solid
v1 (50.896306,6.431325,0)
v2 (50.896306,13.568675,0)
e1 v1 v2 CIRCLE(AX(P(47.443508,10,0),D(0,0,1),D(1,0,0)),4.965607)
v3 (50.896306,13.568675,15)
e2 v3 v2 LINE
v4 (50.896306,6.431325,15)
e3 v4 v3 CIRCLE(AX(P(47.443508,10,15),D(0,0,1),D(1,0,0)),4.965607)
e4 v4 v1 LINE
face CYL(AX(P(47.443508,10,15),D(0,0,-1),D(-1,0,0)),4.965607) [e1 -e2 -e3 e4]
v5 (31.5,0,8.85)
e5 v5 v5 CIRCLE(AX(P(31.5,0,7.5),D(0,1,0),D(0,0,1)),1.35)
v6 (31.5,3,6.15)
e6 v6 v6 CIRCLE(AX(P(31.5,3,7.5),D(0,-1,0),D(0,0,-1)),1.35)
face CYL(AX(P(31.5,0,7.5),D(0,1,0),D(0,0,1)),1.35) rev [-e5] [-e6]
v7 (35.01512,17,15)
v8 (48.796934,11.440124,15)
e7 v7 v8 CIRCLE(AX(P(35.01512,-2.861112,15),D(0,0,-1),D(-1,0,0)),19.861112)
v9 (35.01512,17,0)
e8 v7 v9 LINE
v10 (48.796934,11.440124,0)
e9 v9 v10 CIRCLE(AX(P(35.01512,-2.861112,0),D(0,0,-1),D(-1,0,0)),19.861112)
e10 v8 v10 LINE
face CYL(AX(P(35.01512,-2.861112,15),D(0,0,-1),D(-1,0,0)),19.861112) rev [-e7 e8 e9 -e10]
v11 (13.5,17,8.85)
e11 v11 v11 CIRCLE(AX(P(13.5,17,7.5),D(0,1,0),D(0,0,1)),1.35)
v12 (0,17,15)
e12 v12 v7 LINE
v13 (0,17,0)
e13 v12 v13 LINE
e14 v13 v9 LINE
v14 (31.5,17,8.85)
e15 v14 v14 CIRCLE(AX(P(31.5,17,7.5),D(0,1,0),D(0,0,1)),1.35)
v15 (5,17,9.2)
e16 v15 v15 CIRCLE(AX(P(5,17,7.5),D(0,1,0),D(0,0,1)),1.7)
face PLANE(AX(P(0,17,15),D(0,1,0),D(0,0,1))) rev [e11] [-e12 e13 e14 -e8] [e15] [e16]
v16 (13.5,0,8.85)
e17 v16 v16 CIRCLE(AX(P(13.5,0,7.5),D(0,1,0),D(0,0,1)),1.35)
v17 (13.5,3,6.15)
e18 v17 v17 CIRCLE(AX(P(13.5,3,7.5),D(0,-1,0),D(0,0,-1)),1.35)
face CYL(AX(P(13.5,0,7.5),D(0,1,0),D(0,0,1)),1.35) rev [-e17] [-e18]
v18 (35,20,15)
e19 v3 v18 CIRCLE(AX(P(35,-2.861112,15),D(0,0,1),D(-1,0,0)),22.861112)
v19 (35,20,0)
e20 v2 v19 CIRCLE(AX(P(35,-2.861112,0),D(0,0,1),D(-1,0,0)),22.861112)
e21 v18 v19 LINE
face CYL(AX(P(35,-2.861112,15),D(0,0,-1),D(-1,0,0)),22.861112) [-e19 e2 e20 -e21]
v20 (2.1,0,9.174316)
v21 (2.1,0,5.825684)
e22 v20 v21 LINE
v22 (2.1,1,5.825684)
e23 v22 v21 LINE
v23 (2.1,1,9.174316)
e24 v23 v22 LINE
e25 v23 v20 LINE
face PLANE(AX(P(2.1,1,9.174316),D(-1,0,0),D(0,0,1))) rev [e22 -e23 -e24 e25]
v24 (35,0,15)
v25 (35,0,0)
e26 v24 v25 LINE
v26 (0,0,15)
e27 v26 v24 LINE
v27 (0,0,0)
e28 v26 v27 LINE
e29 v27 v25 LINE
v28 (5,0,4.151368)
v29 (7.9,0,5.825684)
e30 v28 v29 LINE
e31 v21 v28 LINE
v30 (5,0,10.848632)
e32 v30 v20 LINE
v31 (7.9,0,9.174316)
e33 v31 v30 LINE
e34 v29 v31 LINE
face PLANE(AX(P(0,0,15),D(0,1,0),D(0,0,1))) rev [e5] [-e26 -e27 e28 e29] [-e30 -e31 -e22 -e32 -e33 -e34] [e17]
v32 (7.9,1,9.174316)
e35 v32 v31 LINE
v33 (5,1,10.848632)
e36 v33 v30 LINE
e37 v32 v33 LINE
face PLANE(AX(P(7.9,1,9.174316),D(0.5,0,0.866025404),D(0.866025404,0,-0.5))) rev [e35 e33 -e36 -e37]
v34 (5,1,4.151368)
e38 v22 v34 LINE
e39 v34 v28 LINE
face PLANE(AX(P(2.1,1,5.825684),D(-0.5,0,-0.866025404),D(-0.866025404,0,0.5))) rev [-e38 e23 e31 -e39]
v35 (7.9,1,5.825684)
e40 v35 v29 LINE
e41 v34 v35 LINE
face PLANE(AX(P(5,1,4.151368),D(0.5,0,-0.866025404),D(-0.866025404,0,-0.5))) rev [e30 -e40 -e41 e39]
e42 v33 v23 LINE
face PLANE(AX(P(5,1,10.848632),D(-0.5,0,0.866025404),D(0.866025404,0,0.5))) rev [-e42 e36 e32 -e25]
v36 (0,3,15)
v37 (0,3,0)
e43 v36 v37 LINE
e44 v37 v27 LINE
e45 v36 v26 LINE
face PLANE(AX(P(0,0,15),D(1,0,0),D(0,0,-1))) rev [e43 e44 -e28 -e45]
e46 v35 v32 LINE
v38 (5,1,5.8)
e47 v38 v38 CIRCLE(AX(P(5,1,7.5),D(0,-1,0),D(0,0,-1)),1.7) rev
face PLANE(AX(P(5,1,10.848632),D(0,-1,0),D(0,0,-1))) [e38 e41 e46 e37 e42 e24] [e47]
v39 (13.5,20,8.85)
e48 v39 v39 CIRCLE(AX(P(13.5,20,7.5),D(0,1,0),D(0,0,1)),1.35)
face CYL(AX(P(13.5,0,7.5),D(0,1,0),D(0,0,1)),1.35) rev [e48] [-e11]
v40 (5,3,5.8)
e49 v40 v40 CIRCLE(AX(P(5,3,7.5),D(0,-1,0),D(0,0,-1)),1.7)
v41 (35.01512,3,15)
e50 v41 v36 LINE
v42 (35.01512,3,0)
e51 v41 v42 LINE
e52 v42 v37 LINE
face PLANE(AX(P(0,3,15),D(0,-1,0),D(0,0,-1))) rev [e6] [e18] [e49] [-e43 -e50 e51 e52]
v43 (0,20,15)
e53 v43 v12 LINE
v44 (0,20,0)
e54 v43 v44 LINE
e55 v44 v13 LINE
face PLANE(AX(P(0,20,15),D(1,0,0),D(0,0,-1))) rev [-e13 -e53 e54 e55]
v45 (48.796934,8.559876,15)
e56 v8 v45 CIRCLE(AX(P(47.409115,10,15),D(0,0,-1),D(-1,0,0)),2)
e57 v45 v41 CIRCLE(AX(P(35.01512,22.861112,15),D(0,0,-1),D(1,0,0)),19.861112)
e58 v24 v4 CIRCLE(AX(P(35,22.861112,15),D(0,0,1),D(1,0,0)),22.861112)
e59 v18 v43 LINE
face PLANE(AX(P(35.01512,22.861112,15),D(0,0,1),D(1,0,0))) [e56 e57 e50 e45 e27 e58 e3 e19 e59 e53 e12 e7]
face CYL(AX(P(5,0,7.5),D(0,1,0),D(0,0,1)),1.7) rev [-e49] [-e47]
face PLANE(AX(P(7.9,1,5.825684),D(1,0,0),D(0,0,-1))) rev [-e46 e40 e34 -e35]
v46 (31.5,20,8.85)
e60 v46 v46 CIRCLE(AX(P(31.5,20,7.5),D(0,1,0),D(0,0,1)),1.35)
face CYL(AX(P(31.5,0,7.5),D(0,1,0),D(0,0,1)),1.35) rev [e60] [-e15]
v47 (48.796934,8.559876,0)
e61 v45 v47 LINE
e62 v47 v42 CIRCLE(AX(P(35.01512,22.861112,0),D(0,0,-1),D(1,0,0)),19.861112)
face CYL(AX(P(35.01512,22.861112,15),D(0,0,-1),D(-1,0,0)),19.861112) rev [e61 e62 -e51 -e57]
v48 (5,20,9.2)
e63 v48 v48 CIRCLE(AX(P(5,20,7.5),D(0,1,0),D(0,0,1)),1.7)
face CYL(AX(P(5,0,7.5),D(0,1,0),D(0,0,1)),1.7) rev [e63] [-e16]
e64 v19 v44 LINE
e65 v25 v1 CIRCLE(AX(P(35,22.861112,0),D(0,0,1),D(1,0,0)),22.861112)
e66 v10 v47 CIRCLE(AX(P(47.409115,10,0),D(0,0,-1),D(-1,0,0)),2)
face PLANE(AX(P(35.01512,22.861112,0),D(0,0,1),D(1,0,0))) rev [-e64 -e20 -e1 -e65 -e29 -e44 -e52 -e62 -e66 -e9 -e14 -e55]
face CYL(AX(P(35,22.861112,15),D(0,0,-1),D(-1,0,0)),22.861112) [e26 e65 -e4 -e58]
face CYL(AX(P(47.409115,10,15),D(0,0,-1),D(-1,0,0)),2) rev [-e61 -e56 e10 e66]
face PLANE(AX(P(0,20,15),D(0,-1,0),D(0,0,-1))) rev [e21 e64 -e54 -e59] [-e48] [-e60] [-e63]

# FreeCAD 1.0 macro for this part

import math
import FreeCAD as App
import Part
import Sketcher
from FreeCAD import Vector
Q = App.Units.Quantity


def add_polygon(sketch, points):
    """Adds a closed chain of lines whose ends are joined by coincident constraints."""
    first, n = sketch.GeometryCount, len(points)
    for a, b in zip(points, points[1:] + points[:1]):
        sketch.addGeometry(Part.LineSegment(App.Vector(*a, 0), App.Vector(*b, 0)), False)
    for i in range(n):
        sketch.addConstraint(Sketcher.Constraint("Coincident", first + i, 2, first + (i + 1) % n, 1))

doc = App.newDocument("Part")
body = doc.addObject("PartDesign::Body", "Body")

# Sketch on XY plane
sketch1 = doc.addObject("Sketcher::SketchObject", "Sketch")
body.addObject(sketch1)
sketch1.AttachmentSupport = (doc.XY_Plane, [""])
sketch1.MapMode = "FlatFace"
sketch1.addGeometry(Part.LineSegment(Vector(0, 0, 0), Vector(35, 0, 0)), False)
sketch1.addGeometry(Part.ArcOfCircle(Part.Circle(Vector(35, 22.9, 0), Vector(0, 0, 1), 22.9), math.radians(-90), math.radians(-46)), False)
sketch1.addGeometry(Part.ArcOfCircle(Part.Circle(Vector(47.4, 10, 0), Vector(0, 0, 1), 5), math.radians(-46), math.radians(46)), False)
sketch1.addGeometry(Part.ArcOfCircle(Part.Circle(Vector(35, -2.9, 0), Vector(0, 0, 1), 22.9), math.radians(46), math.radians(90)), False)
sketch1.addGeometry(Part.LineSegment(Vector(35, 20, 0), Vector(0, 20, 0)), False)
sketch1.addGeometry(Part.LineSegment(Vector(0, 20, 0), Vector(0, 17, 0)), False)
sketch1.addGeometry(Part.LineSegment(Vector(0, 17, 0), Vector(35, 17, 0)), False)
sketch1.addGeometry(Part.ArcOfCircle(Part.Circle(Vector(35, -2.9, 0), Vector(0, 0, 1), 19.9), math.radians(46), math.radians(90)), False)
sketch1.addGeometry(Part.ArcOfCircle(Part.Circle(Vector(47.4, 10, 0), Vector(0, 0, 1), 2), math.radians(-46), math.radians(46)), False)
sketch1.addGeometry(Part.ArcOfCircle(Part.Circle(Vector(35, 22.9, 0), Vector(0, 0, 1), 19.9), math.radians(-90), math.radians(-46)), False)
sketch1.addGeometry(Part.LineSegment(Vector(35, 3, 0), Vector(0, 3, 0)), False)
sketch1.addGeometry(Part.LineSegment(Vector(0, 3, 0), Vector(0, 0, 0)), False)
sketch1.addConstraint(Sketcher.Constraint("Tangent", 0, 2, 1, 1))
sketch1.addConstraint(Sketcher.Constraint("Tangent", 1, 2, 2, 1))
sketch1.addConstraint(Sketcher.Constraint("Tangent", 2, 2, 3, 1))
sketch1.addConstraint(Sketcher.Constraint("Tangent", 3, 2, 4, 1))
sketch1.addConstraint(Sketcher.Constraint("Coincident", 4, 2, 5, 1))
sketch1.addConstraint(Sketcher.Constraint("Coincident", 5, 2, 6, 1))
sketch1.addConstraint(Sketcher.Constraint("Tangent", 6, 2, 7, 2))
sketch1.addConstraint(Sketcher.Constraint("Tangent", 7, 1, 8, 2))
sketch1.addConstraint(Sketcher.Constraint("Tangent", 8, 1, 9, 2))
sketch1.addConstraint(Sketcher.Constraint("Tangent", 9, 1, 10, 1))
sketch1.addConstraint(Sketcher.Constraint("Coincident", 10, 2, 11, 1))
sketch1.addConstraint(Sketcher.Constraint("Coincident", 11, 2, 0, 1))
sketch1.addConstraint(Sketcher.Constraint("Horizontal", 0))
sketch1.addConstraint(Sketcher.Constraint("Horizontal", 4))
sketch1.addConstraint(Sketcher.Constraint("Vertical", 5))
sketch1.addConstraint(Sketcher.Constraint("Horizontal", 6))
sketch1.addConstraint(Sketcher.Constraint("Horizontal", 10))
sketch1.addConstraint(Sketcher.Constraint("Vertical", 11))
sketch1.addConstraint(Sketcher.Constraint("Coincident", 11, 2, -1, 1))
sketch1.addConstraint(Sketcher.Constraint("Equal", 1, 3))
sketch1.addConstraint(Sketcher.Constraint("Equal", 7, 9))
sketch1.addConstraint(Sketcher.Constraint("PointOnObject", 4, 2, -2))
sketch1.addConstraint(Sketcher.Constraint("Horizontal", 3, 3, 7, 3))
sketch1.addConstraint(Sketcher.Constraint("Horizontal", 2, 3, 8, 3))
sketch1.addConstraint(Sketcher.Constraint("Horizontal", 1, 3, 9, 3))
sketch1.addConstraint(Sketcher.Constraint("Vertical", 1, 3, 3, 3))
sketch1.addConstraint(Sketcher.Constraint("Radius", 8, Q("2 mm")))
sketch1.addConstraint(Sketcher.Constraint("DistanceX", 0, 1, 0, 2, Q("35 mm")))
sketch1.addConstraint(Sketcher.Constraint("DistanceY", 5, 2, 5, 1, Q("3 mm")))
sketch1.addConstraint(Sketcher.Constraint("DistanceY", -1, 1, 2, 3, Q("10 mm")))
sketch1.addConstraint(Sketcher.Constraint("Radius", 1, Q("22.861112 mm")))
sketch1.addConstraint(Sketcher.Constraint("Radius", 2, Q("4.965607 mm")))
sketch1.addConstraint(Sketcher.Constraint("DistanceX", 6, 1, 6, 2, Q("35.01512 mm")))
pad1 = doc.addObject("PartDesign::Pad", "Pad")
body.addObject(pad1)
pad1.Profile = sketch1
pad1.Length = 15

# Sketch on XZ plane
sketch2 = doc.addObject("Sketcher::SketchObject", "Sketch001")
body.addObject(sketch2)
sketch2.AttachmentSupport = (doc.XZ_Plane, [""])
sketch2.MapMode = "FlatFace"
sketch2.AttachmentOffset = App.Placement(Vector(0, 0, -20), App.Rotation())
sketch2.addGeometry(Part.Circle(Vector(5, 7.5, 0), Vector(0, 0, 1), 1.7), False)
sketch2.addGeometry(Part.Circle(Vector(13.5, 7.5, 0), Vector(0, 0, 1), 1.4), False)
sketch2.addGeometry(Part.Circle(Vector(31.5, 7.5, 0), Vector(0, 0, 1), 1.4), False)
sketch2.addConstraint(Sketcher.Constraint("Equal", 1, 2))
sketch2.addConstraint(Sketcher.Constraint("Horizontal", 0, 3, 1, 3))
sketch2.addConstraint(Sketcher.Constraint("Horizontal", 1, 3, 2, 3))
sketch2.addConstraint(Sketcher.Constraint("Diameter", 0, Q("3.4 mm")))
sketch2.addConstraint(Sketcher.Constraint("Diameter", 1, Q("2.7 mm")))
sketch2.addConstraint(Sketcher.Constraint("DistanceX", -1, 1, 0, 3, Q("5 mm")))
sketch2.addConstraint(Sketcher.Constraint("DistanceX", 1, 3, 2, 3, Q("18 mm")))
sketch2.addConstraint(Sketcher.Constraint("DistanceY", -1, 1, 0, 3, Q("7.5 mm")))
sketch2.addConstraint(Sketcher.Constraint("DistanceX", -1, 1, 1, 3, Q("13.5 mm")))
pocket1 = doc.addObject("PartDesign::Pocket", "Pocket")
body.addObject(pocket1)
pocket1.Profile = sketch2
pocket1.Type = "ThroughAll"
pocket1.Reversed = True

# Sketch on XZ plane
sketch3 = doc.addObject("Sketcher::SketchObject", "Sketch002")
body.addObject(sketch3)
sketch3.AttachmentSupport = (doc.XZ_Plane, [""])
sketch3.MapMode = "FlatFace"
add_polygon(sketch3, [(5, 10.8), (2.1, 9.2), (2.1, 5.8), (5, 4.2), (7.9, 5.8), (7.9, 9.2)])  # lines 0-5
sketch3.addConstraint(Sketcher.Constraint("Vertical", 1))
sketch3.addConstraint(Sketcher.Constraint("Vertical", 4))
sketch3.addConstraint(Sketcher.Constraint("Parallel", 0, 3))
sketch3.addConstraint(Sketcher.Constraint("Parallel", 2, 5))
sketch3.addConstraint(Sketcher.Constraint("Horizontal", 1, 2, 3, 2))
sketch3.addConstraint(Sketcher.Constraint("Horizontal", 0, 2, 4, 2))
sketch3.addConstraint(Sketcher.Constraint("Vertical", 2, 2, 5, 2))
sketch3.addConstraint(Sketcher.Constraint("Angle", 0, Q("-150 deg")))
sketch3.addConstraint(Sketcher.Constraint("DistanceX", -1, 1, 2, 2, Q("5 mm")))
sketch3.addConstraint(Sketcher.Constraint("DistanceX", -1, 1, 0, 2, Q("2.1 mm")))
sketch3.addConstraint(Sketcher.Constraint("DistanceY", 1, 2, 1, 1, Q("3.348632 mm")))
sketch3.addConstraint(Sketcher.Constraint("DistanceY", -1, 1, 2, 2, Q("4.151368 mm")))
pocket2 = doc.addObject("PartDesign::Pocket", "Pocket001")
body.addObject(pocket2)
pocket2.Profile = sketch3
pocket2.Length = 1

doc.recompute()
